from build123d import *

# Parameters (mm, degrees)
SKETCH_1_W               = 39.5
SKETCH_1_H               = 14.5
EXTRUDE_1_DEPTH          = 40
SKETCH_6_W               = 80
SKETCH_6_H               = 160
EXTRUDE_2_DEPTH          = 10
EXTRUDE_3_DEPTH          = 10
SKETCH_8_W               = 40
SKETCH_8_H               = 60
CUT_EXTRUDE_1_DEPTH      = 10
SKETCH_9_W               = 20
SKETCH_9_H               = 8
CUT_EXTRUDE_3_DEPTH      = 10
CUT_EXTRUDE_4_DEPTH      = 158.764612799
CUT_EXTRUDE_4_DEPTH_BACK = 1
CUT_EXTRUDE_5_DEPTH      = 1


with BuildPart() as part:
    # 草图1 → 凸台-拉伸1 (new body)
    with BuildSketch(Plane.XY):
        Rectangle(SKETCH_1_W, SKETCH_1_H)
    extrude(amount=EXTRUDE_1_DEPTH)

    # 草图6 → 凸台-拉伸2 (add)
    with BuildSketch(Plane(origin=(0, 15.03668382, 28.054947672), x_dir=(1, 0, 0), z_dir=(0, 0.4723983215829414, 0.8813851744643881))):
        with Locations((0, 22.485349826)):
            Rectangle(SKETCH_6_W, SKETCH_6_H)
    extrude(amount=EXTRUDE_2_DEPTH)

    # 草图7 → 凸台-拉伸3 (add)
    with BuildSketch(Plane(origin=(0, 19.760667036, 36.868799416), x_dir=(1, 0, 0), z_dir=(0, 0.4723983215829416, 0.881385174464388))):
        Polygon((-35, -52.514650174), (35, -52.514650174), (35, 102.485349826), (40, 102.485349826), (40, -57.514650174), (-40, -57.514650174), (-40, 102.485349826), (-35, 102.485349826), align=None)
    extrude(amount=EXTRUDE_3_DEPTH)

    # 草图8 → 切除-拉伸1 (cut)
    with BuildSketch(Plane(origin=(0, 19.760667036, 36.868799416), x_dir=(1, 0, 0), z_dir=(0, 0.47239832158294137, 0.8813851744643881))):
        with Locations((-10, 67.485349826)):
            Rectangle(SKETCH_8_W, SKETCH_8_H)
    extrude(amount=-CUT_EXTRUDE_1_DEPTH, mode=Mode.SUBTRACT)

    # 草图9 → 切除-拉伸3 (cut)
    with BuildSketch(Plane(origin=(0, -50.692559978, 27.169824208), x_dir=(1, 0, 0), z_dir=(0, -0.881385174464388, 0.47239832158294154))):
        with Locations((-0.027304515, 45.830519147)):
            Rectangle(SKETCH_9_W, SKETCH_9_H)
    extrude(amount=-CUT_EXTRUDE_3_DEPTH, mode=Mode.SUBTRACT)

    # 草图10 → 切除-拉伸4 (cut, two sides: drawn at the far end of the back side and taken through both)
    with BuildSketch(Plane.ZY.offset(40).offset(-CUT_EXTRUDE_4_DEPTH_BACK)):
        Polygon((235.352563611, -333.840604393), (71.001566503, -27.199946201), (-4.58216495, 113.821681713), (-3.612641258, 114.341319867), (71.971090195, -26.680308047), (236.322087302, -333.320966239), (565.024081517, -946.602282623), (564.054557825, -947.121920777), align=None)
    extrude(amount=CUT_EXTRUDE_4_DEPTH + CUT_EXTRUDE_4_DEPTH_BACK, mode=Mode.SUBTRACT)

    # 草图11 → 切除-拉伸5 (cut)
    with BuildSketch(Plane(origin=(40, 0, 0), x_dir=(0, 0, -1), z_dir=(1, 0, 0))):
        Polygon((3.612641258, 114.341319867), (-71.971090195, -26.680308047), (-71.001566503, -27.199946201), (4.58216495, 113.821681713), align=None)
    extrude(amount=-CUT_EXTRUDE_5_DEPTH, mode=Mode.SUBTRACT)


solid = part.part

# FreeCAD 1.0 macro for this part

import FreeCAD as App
import Part
import Sketcher


def add_polygon(sketch, points):
    """Adds a closed chain of lines whose ends are joined by coincident constraints."""
    first, n = sketch.GeometryCount, len(points)
    for a, b in zip(points, points[1:] + points[:1]):
        sketch.addGeometry(Part.LineSegment(App.Vector(*a, 0), App.Vector(*b, 0)), False)
    for i in range(n):
        sketch.addConstraint(Sketcher.Constraint("Coincident", first + i, 2, first + (i + 1) % n, 1))

doc = App.newDocument("Part")
params = doc.addObject("Spreadsheet::Sheet", "Params")
for row, (alias, value) in enumerate([
    ("sketch1_width", "39.5 mm"),
    ("sketch1_height", "14.5 mm"),
    ("pad1_length", "40 mm"),
    ("sketch2_width", "80 mm"),
    ("sketch2_height", "160 mm"),
    ("pad2_length", "10 mm"),
    ("sketch3_width", "70 mm"),
    ("sketch3_width2", "5 mm"),
    ("sketch3_height", "155 mm"),
    ("sketch3_height2", "160 mm"),
    ("pad3_length", "10 mm"),
    ("sketch4_width", "40 mm"),
    ("sketch4_height", "60 mm"),
    ("pocket1_length", "10 mm"),
    ("sketch5_width", "20 mm"),
    ("sketch5_height", "8 mm"),
    ("pocket2_length", "10 mm"),
    ("sketch6_length", "160 mm"),
    ("sketch6_length2", "1.1 mm"),
    ("pocket3_length", "158.764613 mm"),
    ("pocket3_length2", "1 mm"),
    ("sketch7_length", "160 mm"),
    ("sketch7_length2", "1.1 mm"),
    ("pocket4_length", "1 mm"),
], start=1):
    params.set(f"A{row}", alias)
    params.set(f"B{row}", "=" + value)
    params.setAlias(f"B{row}", alias)

body = doc.addObject("PartDesign::Body", "Body")

# Sketch on XY plane
sketch1 = body.newObject("Sketcher::SketchObject", "Sketch")
sketch1.AttachmentSupport = (doc.getObject("XY_Plane"), [""])
sketch1.MapMode = "FlatFace"
add_polygon(sketch1, [(-20, 7), (-20, -7), (20, -7), (20, 7)])  # lines 0-3
sketch1.addConstraint([
    Sketcher.Constraint("Vertical", 0),
    Sketcher.Constraint("Horizontal", 1),
    Sketcher.Constraint("Vertical", 2),
    Sketcher.Constraint("Horizontal", 3),
    Sketcher.Constraint("Symmetric", 0, 2, 2, 2, -1, 1),
    Sketcher.Constraint("DistanceX", 1, 1, 1, 2, 39.5),
    Sketcher.Constraint("DistanceY", 0, 2, 0, 1, 14.5),
])
sketch1.setExpression("Constraints[9]", "Params.sketch1_width")
sketch1.setExpression("Constraints[10]", "Params.sketch1_height")
pad1 = body.newObject("PartDesign::Pad", "Pad")
pad1.Profile = sketch1
pad1.setExpression("Length", "Params.pad1_length")

# Sketch on an angled plane
sketch2 = body.newObject("Sketcher::SketchObject", "Sketch001")
sketch2.Placement = App.Placement(App.Vector(0, 15.036684, 28.054948), App.Rotation(App.Vector(1, 0, 0), App.Vector(0, 0.881385174, -0.472398322), App.Vector(0, 0.472398322, 0.881385174), "ZXY"))
add_polygon(sketch2, [(-40, 102), (-40, -58), (40, -58), (40, 102)])  # lines 0-3
sketch2.addConstraint([
    Sketcher.Constraint("Vertical", 0),
    Sketcher.Constraint("Horizontal", 1),
    Sketcher.Constraint("Vertical", 2),
    Sketcher.Constraint("Horizontal", 3),
    Sketcher.Constraint("DistanceX", 1, 1, 1, 2, 80.0),
    Sketcher.Constraint("DistanceY", 0, 2, 0, 1, 160.0),
    Sketcher.Constraint("DistanceX", 0, 2, -1, 1, 40.0),
    Sketcher.Constraint("DistanceY", 0, 2, -1, 1, 57.51465),
])
sketch2.setExpression("Constraints[8]", "Params.sketch2_width")
sketch2.setExpression("Constraints[9]", "Params.sketch2_height")
pad2 = body.newObject("PartDesign::Pad", "Pad001")
pad2.Profile = sketch2
pad2.setExpression("Length", "Params.pad2_length")

# Sketch on an angled plane
sketch3 = body.newObject("Sketcher::SketchObject", "Sketch002")
sketch3.Placement = App.Placement(App.Vector(0, 19.760667, 36.868799), App.Rotation(App.Vector(1, 0, 0), App.Vector(0, 0.881385174, -0.472398322), App.Vector(0, 0.472398322, 0.881385174), "ZXY"))
add_polygon(sketch3, [(35, -53), (-35, -53), (-35, 102), (-40, 102), (-40, -58), (40, -58), (40, 102), (35, 102)])  # lines 0-7
sketch3.addConstraint([
    Sketcher.Constraint("Horizontal", 0),
    Sketcher.Constraint("Vertical", 1),
    Sketcher.Constraint("Horizontal", 2),
    Sketcher.Constraint("Vertical", 3),
    Sketcher.Constraint("Horizontal", 4),
    Sketcher.Constraint("Vertical", 5),
    Sketcher.Constraint("Horizontal", 6),
    Sketcher.Constraint("Vertical", 7),
    Sketcher.Constraint("Symmetric", 2, 2, 5, 2, -2),
    Sketcher.Constraint("Equal", 2, 6),
    Sketcher.Constraint("DistanceX", 0, 2, 0, 1, 70.0),
    Sketcher.Constraint("DistanceX", 2, 2, 2, 1, 5.0),
    Sketcher.Constraint("DistanceY", 1, 1, 1, 2, 155.0),
    Sketcher.Constraint("DistanceY", 3, 2, 3, 1, 160.0),
    Sketcher.Constraint("DistanceY", 0, 2, -1, 1, 52.51465),
])
sketch3.setExpression("Constraints[18]", "Params.sketch3_width")
sketch3.setExpression("Constraints[19]", "Params.sketch3_width2")
sketch3.setExpression("Constraints[20]", "Params.sketch3_height")
sketch3.setExpression("Constraints[21]", "Params.sketch3_height2")
pad3 = body.newObject("PartDesign::Pad", "Pad002")
pad3.Profile = sketch3
pad3.setExpression("Length", "Params.pad3_length")

# Sketch on an angled plane
sketch4 = body.newObject("Sketcher::SketchObject", "Sketch003")
sketch4.Placement = App.Placement(App.Vector(0, 19.760667, 36.868799), App.Rotation(App.Vector(1, 0, 0), App.Vector(0, 0.881385174, -0.472398322), App.Vector(0, 0.472398322, 0.881385174), "ZXY"))
add_polygon(sketch4, [(-30, 97), (-30, 37), (10, 37), (10, 97)])  # lines 0-3
sketch4.addConstraint([
    Sketcher.Constraint("Vertical", 0),
    Sketcher.Constraint("Horizontal", 1),
    Sketcher.Constraint("Vertical", 2),
    Sketcher.Constraint("Horizontal", 3),
    Sketcher.Constraint("DistanceX", 1, 1, 1, 2, 40.0),
    Sketcher.Constraint("DistanceY", 0, 2, 0, 1, 60.0),
    Sketcher.Constraint("DistanceX", 0, 2, -1, 1, 30.0),
    Sketcher.Constraint("DistanceY", -1, 1, 0, 2, 37.48535),
])
sketch4.setExpression("Constraints[8]", "Params.sketch4_width")
sketch4.setExpression("Constraints[9]", "Params.sketch4_height")
pocket1 = body.newObject("PartDesign::Pocket", "Pocket")
pocket1.Profile = sketch4
pocket1.setExpression("Length", "Params.pocket1_length")

# Sketch on an angled plane
sketch5 = body.newObject("Sketcher::SketchObject", "Sketch004")
sketch5.Placement = App.Placement(App.Vector(0, -50.69256, 27.169824), App.Rotation(App.Vector(1, 0, 0), App.Vector(0, 0.472398322, 0.881385174), App.Vector(0, -0.881385174, 0.472398322), "ZXY"))
add_polygon(sketch5, [(-10, 50), (-10, 42), (10, 42), (10, 50)])  # lines 0-3
sketch5.addConstraint([
    Sketcher.Constraint("Vertical", 0),
    Sketcher.Constraint("Horizontal", 1),
    Sketcher.Constraint("Vertical", 2),
    Sketcher.Constraint("Horizontal", 3),
    Sketcher.Constraint("DistanceX", 1, 1, 1, 2, 20.0),
    Sketcher.Constraint("DistanceY", 0, 2, 0, 1, 8.0),
    Sketcher.Constraint("DistanceY", -1, 1, 0, 2, 41.830519),
    Sketcher.Constraint("DistanceX", 0, 2, -1, 1, 10.027305),
])
sketch5.setExpression("Constraints[8]", "Params.sketch5_width")
sketch5.setExpression("Constraints[9]", "Params.sketch5_height")
pocket2 = body.newObject("PartDesign::Pocket", "Pocket001")
pocket2.Profile = sketch5
pocket2.setExpression("Length", "Params.pocket2_length")

# Sketch on YZ plane
sketch6 = body.newObject("Sketcher::SketchObject", "Sketch005")
sketch6.AttachmentSupport = (doc.getObject("YZ_Plane"), [""])
sketch6.MapMode = "FlatFace"
sketch6.AttachmentOffset = App.Placement(App.Vector(0, 0, -40), App.Rotation())
add_polygon(sketch6, [(-27.2, 71), (-333.8, 235.4), (-947.1, 564.1), (-946.6, 565), (-333.3, 236.3), (114.3, -3.6), (113.8, -4.6)])  # lines 0-6
sketch6.addConstraint([
    Sketcher.Constraint("Parallel", 0, 1),
    Sketcher.Constraint("Perpendicular", 1, 2),
    Sketcher.Constraint("Parallel", 1, 3),
    Sketcher.Constraint("Parallel", 3, 4),
    Sketcher.Constraint("Perpendicular", 4, 5),
    Sketcher.Constraint("Perpendicular", 5, 6),
    Sketcher.Constraint("Equal", 1, 3),
    Sketcher.Constraint("Distance", 6, 160.0),
    Sketcher.Constraint("Distance", 2, 1.1),
    Sketcher.Constraint("DistanceY", 4, 2, 1, 2, 567.667199),
    Sketcher.Constraint("Distance", 1, 695.81533),
    Sketcher.Constraint("DistanceX", 1, 2, -1, 1, 947.121921),
    Sketcher.Constraint("DistanceY", -1, 1, 2, 2, 565.024082),
    Sketcher.Constraint("DistanceX", -1, 1, 4, 2, 114.34132),
])
sketch6.setExpression("Constraints[14]", "Params.sketch6_length")
sketch6.setExpression("Constraints[15]", "Params.sketch6_length2")
pocket3 = body.newObject("PartDesign::Pocket", "Pocket002")
pocket3.Profile = sketch6
pocket3.Type = "TwoLengths"
pocket3.setExpression("Length", "Params.pocket3_length")
pocket3.setExpression("Length2", "Params.pocket3_length2")

# Sketch on YZ plane
sketch7 = body.newObject("Sketcher::SketchObject", "Sketch006")
sketch7.AttachmentSupport = (doc.getObject("YZ_Plane"), [""])
sketch7.MapMode = "FlatFace"
sketch7.AttachmentOffset = App.Placement(App.Vector(0, 0, 40), App.Rotation())
add_polygon(sketch7, [(114.3, -3.6), (-26.7, 72), (-27.2, 71), (113.8, -4.6)])  # lines 0-3
sketch7.addConstraint([
    Sketcher.Constraint("Perpendicular", 0, 1),
    Sketcher.Constraint("Perpendicular", 1, 2),
    Sketcher.Constraint("Perpendicular", 2, 3),
    Sketcher.Constraint("Distance", 0, 160.0),
    Sketcher.Constraint("Distance", 1, 1.1),
    Sketcher.Constraint("DistanceX", 0, 2, -1, 1, 26.680308),
    Sketcher.Constraint("DistanceY", -1, 1, 0, 2, 71.97109),
    Sketcher.Constraint("DistanceX", -1, 1, 2, 2, 113.821682),
])
sketch7.setExpression("Constraints[7]", "Params.sketch7_length")
sketch7.setExpression("Constraints[8]", "Params.sketch7_length2")
pocket4 = body.newObject("PartDesign::Pocket", "Pocket003")
pocket4.Profile = sketch7
pocket4.setExpression("Length", "Params.pocket4_length")

doc.recompute()
